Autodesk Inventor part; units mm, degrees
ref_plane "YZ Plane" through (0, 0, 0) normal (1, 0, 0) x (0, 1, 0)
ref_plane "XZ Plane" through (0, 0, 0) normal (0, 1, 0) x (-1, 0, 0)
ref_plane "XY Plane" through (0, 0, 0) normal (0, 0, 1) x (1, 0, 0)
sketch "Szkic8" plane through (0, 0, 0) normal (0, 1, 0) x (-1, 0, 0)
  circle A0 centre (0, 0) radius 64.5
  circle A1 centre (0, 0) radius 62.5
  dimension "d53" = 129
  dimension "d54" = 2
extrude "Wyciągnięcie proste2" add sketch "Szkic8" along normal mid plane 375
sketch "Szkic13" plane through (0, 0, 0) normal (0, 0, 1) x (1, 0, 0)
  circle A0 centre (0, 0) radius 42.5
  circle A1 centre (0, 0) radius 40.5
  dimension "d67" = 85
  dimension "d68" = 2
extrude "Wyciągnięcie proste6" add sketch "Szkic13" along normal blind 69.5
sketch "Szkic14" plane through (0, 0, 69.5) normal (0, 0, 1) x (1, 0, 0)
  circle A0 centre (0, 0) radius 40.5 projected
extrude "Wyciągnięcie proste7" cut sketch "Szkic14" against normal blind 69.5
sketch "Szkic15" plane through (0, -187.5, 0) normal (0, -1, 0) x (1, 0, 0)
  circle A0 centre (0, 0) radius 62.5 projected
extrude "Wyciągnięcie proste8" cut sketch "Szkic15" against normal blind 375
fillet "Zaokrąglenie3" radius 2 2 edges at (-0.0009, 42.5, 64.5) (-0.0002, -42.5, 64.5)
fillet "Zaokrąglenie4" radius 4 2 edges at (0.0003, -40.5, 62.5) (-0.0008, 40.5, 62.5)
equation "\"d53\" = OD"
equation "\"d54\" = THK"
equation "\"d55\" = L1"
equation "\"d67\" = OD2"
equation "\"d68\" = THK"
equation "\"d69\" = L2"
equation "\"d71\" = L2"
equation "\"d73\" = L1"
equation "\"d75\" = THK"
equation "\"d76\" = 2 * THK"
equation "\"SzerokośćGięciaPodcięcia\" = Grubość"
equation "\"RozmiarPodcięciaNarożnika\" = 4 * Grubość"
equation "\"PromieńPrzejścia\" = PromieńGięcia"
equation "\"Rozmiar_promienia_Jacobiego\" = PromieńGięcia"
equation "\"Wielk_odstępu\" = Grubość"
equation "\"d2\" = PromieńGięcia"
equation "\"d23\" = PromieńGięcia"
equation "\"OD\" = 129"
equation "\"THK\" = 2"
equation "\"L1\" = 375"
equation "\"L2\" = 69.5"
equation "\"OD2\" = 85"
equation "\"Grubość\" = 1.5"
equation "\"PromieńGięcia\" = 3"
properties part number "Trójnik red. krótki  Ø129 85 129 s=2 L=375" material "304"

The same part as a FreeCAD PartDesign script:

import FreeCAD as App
import Part
import Sketcher

V = App.Vector
Q = App.Units.Quantity


def edges_at(feature, points):
    """Names of the edges that pass closest to the given points."""
    edges = feature.Shape.Edges
    near = lambda p: min(range(len(edges)), key=lambda i: edges[i].distToShape(Part.Vertex(*p))[0])
    return sorted({f"Edge{near(p) + 1}" for p in points})

doc = App.newDocument("Part")
body = doc.addObject("PartDesign::Body", "Body")

sketch1 = body.newObject("Sketcher::SketchObject", "Sketch")
sketch1.AttachmentSupport = (doc.getObject("XZ_Plane"), [""])
sketch1.MapMode = "FlatFace"
sketch1.addGeometry(Part.Circle(V(0, 0, 0), V(0, 0, 1), 64), False)
sketch1.addGeometry(Part.Circle(V(0, 0, 0), V(0, 0, 1), 62), False)
sketch1.addConstraint(Sketcher.Constraint("Coincident", 0, 3, -1, 1))
sketch1.addConstraint(Sketcher.Constraint("Coincident", 1, 3, -1, 1))
sketch1.addConstraint(Sketcher.Constraint("Diameter", 0, Q("129 mm")))
sketch1.addConstraint(Sketcher.Constraint("Diameter", 1, Q("125 mm")))
pad1 = body.newObject("PartDesign::Pad", "Pad")
pad1.Profile = sketch1
pad1.Length = 375
pad1.Midplane = True

sketch2 = body.newObject("Sketcher::SketchObject", "Sketch001")
sketch2.AttachmentSupport = (doc.getObject("XY_Plane"), [""])
sketch2.MapMode = "FlatFace"
sketch2.addGeometry(Part.Circle(V(0, 0, 0), V(0, 0, 1), 42), False)
sketch2.addGeometry(Part.Circle(V(0, 0, 0), V(0, 0, 1), 40), False)
sketch2.addConstraint(Sketcher.Constraint("Coincident", 0, 3, -1, 1))
sketch2.addConstraint(Sketcher.Constraint("Coincident", 1, 3, -1, 1))
sketch2.addConstraint(Sketcher.Constraint("Diameter", 0, Q("85 mm")))
sketch2.addConstraint(Sketcher.Constraint("Diameter", 1, Q("81 mm")))
pad2 = body.newObject("PartDesign::Pad", "Pad001")
pad2.Profile = sketch2
pad2.Length = 69.5

sketch3 = body.newObject("Sketcher::SketchObject", "Sketch002")
sketch3.AttachmentSupport = (doc.getObject("XY_Plane"), [""])
sketch3.MapMode = "FlatFace"
sketch3.AttachmentOffset = App.Placement(V(0, 0, 69.5), App.Rotation())
sketch3.addGeometry(Part.Circle(V(0, 0, 0), V(0, 0, 1), 40), False)
sketch3.addConstraint(Sketcher.Constraint("Coincident", 0, 3, -1, 1))
sketch3.addConstraint(Sketcher.Constraint("Diameter", 0, Q("81 mm")))
pocket1 = body.newObject("PartDesign::Pocket", "Pocket")
pocket1.Profile = sketch3
pocket1.Length = 69.5

sketch4 = body.newObject("Sketcher::SketchObject", "Sketch003")
sketch4.AttachmentSupport = (doc.getObject("XZ_Plane"), [""])
sketch4.MapMode = "FlatFace"
sketch4.AttachmentOffset = App.Placement(V(0, 0, 187.5), App.Rotation())
sketch4.addGeometry(Part.Circle(V(0, 0, 0), V(0, 0, 1), 62), False)
sketch4.addConstraint(Sketcher.Constraint("Coincident", 0, 3, -1, 1))
sketch4.addConstraint(Sketcher.Constraint("Diameter", 0, Q("125 mm")))
pocket2 = body.newObject("PartDesign::Pocket", "Pocket001")
pocket2.Profile = sketch4
pocket2.Length = 375
doc.recompute()

fillet = body.newObject("PartDesign::Fillet", "Fillet")
fillet.Base = (pocket2, edges_at(pocket2, [(-0.001, 42.5, 64.5), (0, -42.5, 64.5)]))
fillet.Radius = 2
doc.recompute()

fillet2 = body.newObject("PartDesign::Fillet", "Fillet001")
fillet2.Base = (fillet, edges_at(fillet, [(0, -40.5, 62.5), (-0.001, 40.5, 62.5)]))
fillet2.Radius = 4

doc.recompute()
